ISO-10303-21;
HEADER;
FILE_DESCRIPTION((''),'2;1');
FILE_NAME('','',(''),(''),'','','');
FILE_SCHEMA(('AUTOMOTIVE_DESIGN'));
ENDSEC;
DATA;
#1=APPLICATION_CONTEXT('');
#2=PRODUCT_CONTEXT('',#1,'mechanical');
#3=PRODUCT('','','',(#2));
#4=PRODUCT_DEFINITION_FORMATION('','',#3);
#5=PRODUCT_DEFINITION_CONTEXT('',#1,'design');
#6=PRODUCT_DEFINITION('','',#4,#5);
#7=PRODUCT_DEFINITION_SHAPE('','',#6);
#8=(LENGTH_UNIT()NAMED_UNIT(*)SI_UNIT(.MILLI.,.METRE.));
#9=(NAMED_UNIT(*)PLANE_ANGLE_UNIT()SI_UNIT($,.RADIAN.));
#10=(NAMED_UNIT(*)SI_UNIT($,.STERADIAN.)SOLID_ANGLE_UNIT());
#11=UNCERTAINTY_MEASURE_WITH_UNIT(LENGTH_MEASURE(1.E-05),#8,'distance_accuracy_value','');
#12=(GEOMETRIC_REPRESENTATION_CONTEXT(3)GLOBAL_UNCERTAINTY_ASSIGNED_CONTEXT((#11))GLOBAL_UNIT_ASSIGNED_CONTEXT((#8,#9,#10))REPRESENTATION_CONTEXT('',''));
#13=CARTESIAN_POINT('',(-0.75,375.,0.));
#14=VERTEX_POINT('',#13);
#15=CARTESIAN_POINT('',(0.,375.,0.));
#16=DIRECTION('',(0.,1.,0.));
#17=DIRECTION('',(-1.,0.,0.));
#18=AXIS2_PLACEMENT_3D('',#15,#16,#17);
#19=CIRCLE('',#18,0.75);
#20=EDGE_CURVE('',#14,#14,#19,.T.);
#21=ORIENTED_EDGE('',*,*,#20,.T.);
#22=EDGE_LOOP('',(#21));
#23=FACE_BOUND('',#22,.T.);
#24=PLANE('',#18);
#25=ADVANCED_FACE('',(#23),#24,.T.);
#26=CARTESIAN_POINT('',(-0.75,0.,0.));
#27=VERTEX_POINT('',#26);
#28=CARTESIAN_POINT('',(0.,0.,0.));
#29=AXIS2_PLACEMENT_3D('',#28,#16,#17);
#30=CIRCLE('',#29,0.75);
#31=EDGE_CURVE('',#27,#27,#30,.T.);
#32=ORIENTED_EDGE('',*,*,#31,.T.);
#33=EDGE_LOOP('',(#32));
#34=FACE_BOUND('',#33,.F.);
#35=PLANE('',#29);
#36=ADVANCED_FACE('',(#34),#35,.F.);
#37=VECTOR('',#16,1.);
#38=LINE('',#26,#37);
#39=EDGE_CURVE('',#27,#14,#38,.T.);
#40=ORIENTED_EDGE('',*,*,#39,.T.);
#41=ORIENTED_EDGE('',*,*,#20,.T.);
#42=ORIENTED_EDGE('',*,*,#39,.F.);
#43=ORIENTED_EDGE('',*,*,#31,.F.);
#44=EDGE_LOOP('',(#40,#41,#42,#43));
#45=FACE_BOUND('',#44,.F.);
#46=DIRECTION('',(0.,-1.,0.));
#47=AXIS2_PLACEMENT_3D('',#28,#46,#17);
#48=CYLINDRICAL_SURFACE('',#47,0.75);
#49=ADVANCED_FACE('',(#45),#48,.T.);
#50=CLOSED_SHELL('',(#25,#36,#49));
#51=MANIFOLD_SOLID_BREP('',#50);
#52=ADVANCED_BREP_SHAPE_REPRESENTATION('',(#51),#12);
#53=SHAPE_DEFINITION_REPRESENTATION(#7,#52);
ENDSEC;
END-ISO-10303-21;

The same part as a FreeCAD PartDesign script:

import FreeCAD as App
import Part
import Sketcher

V = App.Vector

doc = App.newDocument("Part")
body = doc.addObject("PartDesign::Body", "Body")

# Sketch on XZ plane
sketch1 = body.newObject("Sketcher::SketchObject", "Sketch")
sketch1.AttachmentSupport = (doc.getObject("XZ_Plane"), [""])
sketch1.MapMode = "FlatFace"
sketch1.addGeometry(Part.Circle(V(0, 0, 0), V(0, 0, 1), 0.8), False)
sketch1.addConstraint([
    Sketcher.Constraint("Coincident", 0, 3, -1, 1),
    Sketcher.Constraint("Diameter", 0, 1.5),
])
pad1 = body.newObject("PartDesign::Pad", "Pad")
pad1.Profile = sketch1
pad1.Length = 375
pad1.Reversed = True

doc.recompute()
